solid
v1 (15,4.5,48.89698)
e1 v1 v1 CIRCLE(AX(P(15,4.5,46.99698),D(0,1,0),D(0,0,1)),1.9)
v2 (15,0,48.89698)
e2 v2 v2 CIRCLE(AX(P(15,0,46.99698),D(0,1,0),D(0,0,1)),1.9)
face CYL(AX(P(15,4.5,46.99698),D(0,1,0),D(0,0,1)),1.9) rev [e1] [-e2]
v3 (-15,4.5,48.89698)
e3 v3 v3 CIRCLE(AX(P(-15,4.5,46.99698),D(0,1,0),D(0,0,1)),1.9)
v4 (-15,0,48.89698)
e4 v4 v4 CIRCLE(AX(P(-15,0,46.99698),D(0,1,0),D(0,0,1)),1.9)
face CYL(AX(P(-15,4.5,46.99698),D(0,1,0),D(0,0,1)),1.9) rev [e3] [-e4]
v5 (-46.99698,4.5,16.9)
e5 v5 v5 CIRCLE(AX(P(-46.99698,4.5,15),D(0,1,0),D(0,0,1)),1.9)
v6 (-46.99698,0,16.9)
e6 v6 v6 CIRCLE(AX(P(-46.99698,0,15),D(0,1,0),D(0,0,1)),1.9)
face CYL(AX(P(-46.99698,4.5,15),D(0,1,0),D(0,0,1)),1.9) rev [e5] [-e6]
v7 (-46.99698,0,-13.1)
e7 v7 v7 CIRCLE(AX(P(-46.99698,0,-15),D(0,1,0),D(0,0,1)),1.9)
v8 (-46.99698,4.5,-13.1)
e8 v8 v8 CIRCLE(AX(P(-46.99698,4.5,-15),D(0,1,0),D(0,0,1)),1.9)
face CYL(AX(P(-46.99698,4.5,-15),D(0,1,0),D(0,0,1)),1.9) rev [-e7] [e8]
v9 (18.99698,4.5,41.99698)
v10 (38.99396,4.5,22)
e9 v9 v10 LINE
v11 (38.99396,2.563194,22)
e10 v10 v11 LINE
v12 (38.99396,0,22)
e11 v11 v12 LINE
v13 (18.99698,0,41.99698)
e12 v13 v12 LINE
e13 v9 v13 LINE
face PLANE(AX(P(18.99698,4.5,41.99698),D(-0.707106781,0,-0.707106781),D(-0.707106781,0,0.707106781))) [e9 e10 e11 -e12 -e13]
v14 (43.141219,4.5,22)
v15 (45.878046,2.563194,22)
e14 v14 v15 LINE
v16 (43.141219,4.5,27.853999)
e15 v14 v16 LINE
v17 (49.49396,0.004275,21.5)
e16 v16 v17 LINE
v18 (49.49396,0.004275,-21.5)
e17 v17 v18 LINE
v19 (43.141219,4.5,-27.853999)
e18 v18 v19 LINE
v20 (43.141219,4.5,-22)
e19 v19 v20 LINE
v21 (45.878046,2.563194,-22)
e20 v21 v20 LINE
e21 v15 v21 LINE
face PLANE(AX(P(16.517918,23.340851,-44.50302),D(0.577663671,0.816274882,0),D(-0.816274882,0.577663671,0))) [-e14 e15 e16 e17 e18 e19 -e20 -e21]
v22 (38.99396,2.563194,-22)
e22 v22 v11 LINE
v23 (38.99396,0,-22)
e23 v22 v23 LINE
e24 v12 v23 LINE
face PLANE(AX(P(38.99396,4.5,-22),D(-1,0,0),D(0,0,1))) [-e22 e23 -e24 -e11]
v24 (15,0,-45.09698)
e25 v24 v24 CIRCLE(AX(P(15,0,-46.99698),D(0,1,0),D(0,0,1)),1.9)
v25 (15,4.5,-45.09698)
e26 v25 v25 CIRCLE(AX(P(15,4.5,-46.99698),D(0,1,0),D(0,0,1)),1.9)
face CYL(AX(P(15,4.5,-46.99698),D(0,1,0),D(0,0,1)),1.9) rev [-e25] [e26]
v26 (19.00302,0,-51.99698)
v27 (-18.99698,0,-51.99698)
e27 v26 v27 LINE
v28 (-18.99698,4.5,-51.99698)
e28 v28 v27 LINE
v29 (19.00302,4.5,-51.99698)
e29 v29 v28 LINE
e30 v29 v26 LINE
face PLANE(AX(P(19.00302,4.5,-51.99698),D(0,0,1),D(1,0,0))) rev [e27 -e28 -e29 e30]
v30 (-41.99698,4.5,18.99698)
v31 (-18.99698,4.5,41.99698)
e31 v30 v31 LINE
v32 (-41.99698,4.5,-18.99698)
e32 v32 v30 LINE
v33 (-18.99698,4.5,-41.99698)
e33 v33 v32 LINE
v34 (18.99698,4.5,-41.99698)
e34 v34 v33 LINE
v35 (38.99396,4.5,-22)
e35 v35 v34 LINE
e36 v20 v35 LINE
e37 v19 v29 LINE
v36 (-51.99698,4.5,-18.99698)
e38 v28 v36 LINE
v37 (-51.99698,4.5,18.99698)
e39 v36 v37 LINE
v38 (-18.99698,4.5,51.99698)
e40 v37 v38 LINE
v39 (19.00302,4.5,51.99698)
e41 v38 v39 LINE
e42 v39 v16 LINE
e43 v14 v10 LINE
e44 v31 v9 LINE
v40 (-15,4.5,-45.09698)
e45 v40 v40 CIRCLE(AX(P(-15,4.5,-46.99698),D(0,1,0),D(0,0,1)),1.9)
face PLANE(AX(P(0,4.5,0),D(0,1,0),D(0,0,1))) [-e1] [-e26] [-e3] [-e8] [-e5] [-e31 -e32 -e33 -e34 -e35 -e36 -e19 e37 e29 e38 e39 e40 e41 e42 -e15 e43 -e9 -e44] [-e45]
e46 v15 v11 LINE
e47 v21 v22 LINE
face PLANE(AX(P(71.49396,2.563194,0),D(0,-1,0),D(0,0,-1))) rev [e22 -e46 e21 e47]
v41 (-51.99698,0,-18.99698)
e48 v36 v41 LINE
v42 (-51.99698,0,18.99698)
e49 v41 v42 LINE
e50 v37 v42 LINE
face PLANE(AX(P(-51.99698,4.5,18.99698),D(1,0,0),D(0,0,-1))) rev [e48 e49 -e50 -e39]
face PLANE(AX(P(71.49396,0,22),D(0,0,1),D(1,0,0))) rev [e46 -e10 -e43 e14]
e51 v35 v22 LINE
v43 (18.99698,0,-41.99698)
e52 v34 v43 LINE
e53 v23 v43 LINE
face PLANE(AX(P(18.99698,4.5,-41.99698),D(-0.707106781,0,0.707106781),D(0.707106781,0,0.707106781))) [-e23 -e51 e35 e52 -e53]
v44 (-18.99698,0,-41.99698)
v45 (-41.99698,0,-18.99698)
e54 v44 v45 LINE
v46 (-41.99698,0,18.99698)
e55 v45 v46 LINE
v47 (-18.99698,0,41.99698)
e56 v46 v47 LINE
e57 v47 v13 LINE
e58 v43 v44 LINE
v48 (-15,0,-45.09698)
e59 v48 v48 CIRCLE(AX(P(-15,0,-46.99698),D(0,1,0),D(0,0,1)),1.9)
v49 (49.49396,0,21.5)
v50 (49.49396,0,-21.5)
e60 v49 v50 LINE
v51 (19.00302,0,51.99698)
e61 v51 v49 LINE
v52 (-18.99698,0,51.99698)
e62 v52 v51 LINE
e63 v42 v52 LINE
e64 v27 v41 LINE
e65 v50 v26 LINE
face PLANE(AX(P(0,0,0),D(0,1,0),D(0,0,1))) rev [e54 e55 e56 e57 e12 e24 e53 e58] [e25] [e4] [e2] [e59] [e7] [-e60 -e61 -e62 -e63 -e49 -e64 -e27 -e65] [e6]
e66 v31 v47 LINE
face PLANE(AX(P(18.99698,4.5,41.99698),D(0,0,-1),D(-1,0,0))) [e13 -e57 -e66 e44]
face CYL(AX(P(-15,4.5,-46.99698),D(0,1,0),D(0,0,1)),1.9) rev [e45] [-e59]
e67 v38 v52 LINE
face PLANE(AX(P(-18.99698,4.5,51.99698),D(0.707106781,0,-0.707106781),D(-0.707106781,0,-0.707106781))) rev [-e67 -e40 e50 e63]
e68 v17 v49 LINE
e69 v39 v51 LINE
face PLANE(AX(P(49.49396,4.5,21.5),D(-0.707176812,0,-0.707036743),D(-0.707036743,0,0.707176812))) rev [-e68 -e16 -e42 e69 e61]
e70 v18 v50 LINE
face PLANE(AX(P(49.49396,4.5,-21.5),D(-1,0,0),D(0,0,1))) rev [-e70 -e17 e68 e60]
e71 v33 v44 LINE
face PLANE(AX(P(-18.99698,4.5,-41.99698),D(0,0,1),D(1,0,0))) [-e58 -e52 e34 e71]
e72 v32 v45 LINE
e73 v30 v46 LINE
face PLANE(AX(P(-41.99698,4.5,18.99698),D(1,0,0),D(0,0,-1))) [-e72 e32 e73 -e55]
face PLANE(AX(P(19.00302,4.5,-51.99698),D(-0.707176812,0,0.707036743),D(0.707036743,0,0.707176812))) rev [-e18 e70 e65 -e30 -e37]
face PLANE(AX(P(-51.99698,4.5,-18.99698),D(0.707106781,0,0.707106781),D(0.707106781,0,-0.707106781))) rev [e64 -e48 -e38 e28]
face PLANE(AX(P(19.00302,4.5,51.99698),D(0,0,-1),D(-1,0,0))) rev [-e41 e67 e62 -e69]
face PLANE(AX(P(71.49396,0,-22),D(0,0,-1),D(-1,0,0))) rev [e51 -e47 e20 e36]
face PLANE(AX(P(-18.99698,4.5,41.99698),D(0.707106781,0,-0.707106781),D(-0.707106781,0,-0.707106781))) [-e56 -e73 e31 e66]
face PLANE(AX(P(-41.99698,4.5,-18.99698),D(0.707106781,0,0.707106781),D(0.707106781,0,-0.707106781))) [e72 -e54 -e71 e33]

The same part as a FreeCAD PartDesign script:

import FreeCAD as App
import Part
import Sketcher
from FreeCAD import Vector
Q = App.Units.Quantity


def add_polygon(sketch, points):
    """Adds a closed chain of lines whose ends are joined by coincident constraints."""
    first, n = sketch.GeometryCount, len(points)
    for a, b in zip(points, points[1:] + points[:1]):
        sketch.addGeometry(Part.LineSegment(App.Vector(*a, 0), App.Vector(*b, 0)), False)
    for i in range(n):
        sketch.addConstraint(Sketcher.Constraint("Coincident", first + i, 2, first + (i + 1) % n, 1))

doc = App.newDocument("Part")
body = doc.addObject("PartDesign::Body", "Body")

# Sketch on XZ plane
sketch1 = body.newObject("Sketcher::SketchObject", "Sketch")
sketch1.AttachmentSupport = (doc.getObject("XZ_Plane"), [""])
sketch1.MapMode = "FlatFace"
add_polygon(sketch1, [(-19, 52), (19, 52), (49, 22), (49, -22), (19, -52), (-19, -52), (-52, -19), (-52, 19)])  # lines 0-7
add_polygon(sketch1, [(-42, 19), (-42, -19), (-19, -42), (19, -42), (39, -22), (39, 22), (19, 42), (-19, 42)])  # lines 8-15
sketch1.addConstraint(Sketcher.Constraint("Horizontal", 0))
sketch1.addConstraint(Sketcher.Constraint("Vertical", 2))
sketch1.addConstraint(Sketcher.Constraint("Horizontal", 4))
sketch1.addConstraint(Sketcher.Constraint("Vertical", 6))
sketch1.addConstraint(Sketcher.Constraint("Vertical", 8))
sketch1.addConstraint(Sketcher.Constraint("Horizontal", 10))
sketch1.addConstraint(Sketcher.Constraint("Vertical", 12))
sketch1.addConstraint(Sketcher.Constraint("Horizontal", 14))
sketch1.addConstraint(Sketcher.Constraint("Symmetric", 9, 2, 13, 2, -1, 1))
sketch1.addConstraint(Sketcher.Constraint("Symmetric", 0, 2, 3, 2, -1))
sketch1.addConstraint(Sketcher.Constraint("Perpendicular", 5, 7))
sketch1.addConstraint(Sketcher.Constraint("Perpendicular", 7, 9))
sketch1.addConstraint(Sketcher.Constraint("Perpendicular", 9, 11))
sketch1.addConstraint(Sketcher.Constraint("Perpendicular", 11, 13))
sketch1.addConstraint(Sketcher.Constraint("Perpendicular", 13, 15))
sketch1.addConstraint(Sketcher.Constraint("Horizontal", 5, 2, 8, 2))
sketch1.addConstraint(Sketcher.Constraint("Horizontal", 6, 2, 15, 2))
sketch1.addConstraint(Sketcher.Constraint("Vertical", 4, 2, 7, 2))
sketch1.addConstraint(Sketcher.Constraint("Vertical", 7, 2, 9, 2))
sketch1.addConstraint(Sketcher.Constraint("Vertical", 10, 2, 13, 2))
sketch1.addConstraint(Sketcher.Constraint("Vertical", 9, 2, 14, 2))
sketch1.addConstraint(Sketcher.Constraint("Equal", 14, 6))
sketch1.addConstraint(Sketcher.Constraint("Equal", 1, 3))
sketch1.addConstraint(Sketcher.Constraint("DistanceX", 0, 1, 0, 2, Q("38 mm")))
sketch1.addConstraint(Sketcher.Constraint("DistanceY", 2, 2, 2, 1, Q("43 mm")))
sketch1.addConstraint(Sketcher.Constraint("DistanceY", 12, 1, 12, 2, Q("44 mm")))
sketch1.addConstraint(Sketcher.Constraint("DistanceX", 5, 2, 4, 2, Q("33 mm")))
sketch1.addConstraint(Sketcher.Constraint("DistanceX", 5, 2, 8, 2, Q("10 mm")))
sketch1.addConstraint(Sketcher.Constraint("DistanceX", 11, 2, 2, 2, Q("10.5 mm")))
sketch1.addConstraint(Sketcher.Constraint("Distance", 11, Q("28.28 mm")))
pad1 = body.newObject("PartDesign::Pad", "Pad")
pad1.Profile = sketch1
pad1.Length = 4.5
pad1.Reversed = True

# Sketch on XY plane
sketch2 = body.newObject("Sketcher::SketchObject", "Sketch001")
sketch2.AttachmentSupport = (doc.getObject("XY_Plane"), [""])
sketch2.MapMode = "FlatFace"
sketch2.AttachmentOffset = App.Placement(Vector(0, 0, 51.99698), App.Rotation())
add_polygon(sketch2, [(50, 0), (64, 15), (43, 19), (43, 4)])  # lines 0-3
sketch2.addConstraint(Sketcher.Constraint("Vertical", 2))
sketch2.addConstraint(Sketcher.Constraint("PointOnObject", 3, 2, -1))
sketch2.addConstraint(Sketcher.Constraint("DistanceY", -1, 1, 2, 2, Q("4.5 mm")))
sketch2.addConstraint(Sketcher.Constraint("DistanceX", -1, 1, 3, 2, Q("49.5 mm")))
sketch2.addConstraint(Sketcher.Constraint("Distance", 3, Q("7.79 mm")))
sketch2.addConstraint(Sketcher.Constraint("Distance", 0, Q("21.09242 mm")))
sketch2.addConstraint(Sketcher.Constraint("DistanceY", 2, 2, 2, 1, Q("14.160375 mm")))
sketch2.addConstraint(Sketcher.Constraint("DistanceX", 1, 2, 0, 2, Q("21.135509 mm")))
pocket1 = body.newObject("PartDesign::Pocket", "Pocket")
pocket1.Profile = sketch2
pocket1.Length = 96.5

# Sketch on YZ plane
sketch3 = body.newObject("Sketcher::SketchObject", "Sketch002")
sketch3.AttachmentSupport = (doc.getObject("YZ_Plane"), [""])
sketch3.MapMode = "FlatFace"
sketch3.AttachmentOffset = App.Placement(Vector(0, 0, 38.99396), App.Rotation())
add_polygon(sketch3, [(4.5, -22), (2.6, -22), (2.6, 22), (4.5, 22)])  # lines 0-3
sketch3.addConstraint(Sketcher.Constraint("Horizontal", 0))
sketch3.addConstraint(Sketcher.Constraint("Vertical", 1))
sketch3.addConstraint(Sketcher.Constraint("Horizontal", 2))
sketch3.addConstraint(Sketcher.Constraint("Vertical", 3))
sketch3.addConstraint(Sketcher.Constraint("DistanceY", 1, 1, 1, 2, Q("44 mm")))
sketch3.addConstraint(Sketcher.Constraint("DistanceY", 0, 2, -1, 1, Q("22 mm")))
sketch3.addConstraint(Sketcher.Constraint("DistanceX", -1, 1, 2, 2, Q("4.5 mm")))
sketch3.addConstraint(Sketcher.Constraint("DistanceX", 0, 2, 0, 1, Q("1.936806 mm")))
pocket2 = body.newObject("PartDesign::Pocket", "Pocket001")
pocket2.Profile = sketch3
pocket2.Length = 32.5
pocket2.Reversed = True

# Sketch on XZ plane
sketch4 = body.newObject("Sketcher::SketchObject", "Sketch003")
sketch4.AttachmentSupport = (doc.getObject("XZ_Plane"), [""])
sketch4.MapMode = "FlatFace"
sketch4.AttachmentOffset = App.Placement(Vector(0, 0, -4.5), App.Rotation())
sketch4.addGeometry(Part.Circle(Vector(-47, 15, 0), Vector(0, 0, 1), 1.9), False)
sketch4.addGeometry(Part.Circle(Vector(-15, -47, 0), Vector(0, 0, 1), 1.9), False)
sketch4.addGeometry(Part.Circle(Vector(-47, -15, 0), Vector(0, 0, 1), 1.9), False)
sketch4.addGeometry(Part.Circle(Vector(15, -47, 0), Vector(0, 0, 1), 1.9), False)
sketch4.addGeometry(Part.Circle(Vector(15, 47, 0), Vector(0, 0, 1), 1.9), False)
sketch4.addGeometry(Part.Circle(Vector(-15, 47, 0), Vector(0, 0, 1), 1.9), False)
sketch4.addConstraint(Sketcher.Constraint("Equal", 0, 1))
sketch4.addConstraint(Sketcher.Constraint("Equal", 1, 2))
sketch4.addConstraint(Sketcher.Constraint("Equal", 2, 3))
sketch4.addConstraint(Sketcher.Constraint("Equal", 3, 4))
sketch4.addConstraint(Sketcher.Constraint("Equal", 4, 5))
sketch4.addConstraint(Sketcher.Constraint("Symmetric", 1, 3, 4, 3, -1, 1))
sketch4.addConstraint(Sketcher.Constraint("Symmetric", 3, 3, 5, 3, -1, 1))
sketch4.addConstraint(Sketcher.Constraint("Symmetric", 1, 3, 3, 3, -2))
sketch4.addConstraint(Sketcher.Constraint("Symmetric", 0, 3, 2, 3, -1))
sketch4.addConstraint(Sketcher.Constraint("Diameter", 0, Q("3.8 mm")))
sketch4.addConstraint(Sketcher.Constraint("DistanceY", -1, 1, 0, 3, Q("15 mm")))
sketch4.addConstraint(Sketcher.Constraint("DistanceX", 1, 3, -1, 1, Q("15 mm")))
sketch4.addConstraint(Sketcher.Constraint("DistanceX", 0, 3, -1, 1, Q("46.99698 mm")))
sketch4.addConstraint(Sketcher.Constraint("DistanceY", 1, 3, -1, 1, Q("46.99698 mm")))
doc.recompute()
hole = body.newObject("PartDesign::Hole", "Hole")
hole.Profile = sketch4
hole.ThreadType = "None"
hole.Diameter = 3.8
hole.DepthType = "Dimension"
hole.Depth = 57
hole.DrillPoint = "Angled"
hole.DrillPointAngle = 45
hole.Reversed = True

doc.recompute()
